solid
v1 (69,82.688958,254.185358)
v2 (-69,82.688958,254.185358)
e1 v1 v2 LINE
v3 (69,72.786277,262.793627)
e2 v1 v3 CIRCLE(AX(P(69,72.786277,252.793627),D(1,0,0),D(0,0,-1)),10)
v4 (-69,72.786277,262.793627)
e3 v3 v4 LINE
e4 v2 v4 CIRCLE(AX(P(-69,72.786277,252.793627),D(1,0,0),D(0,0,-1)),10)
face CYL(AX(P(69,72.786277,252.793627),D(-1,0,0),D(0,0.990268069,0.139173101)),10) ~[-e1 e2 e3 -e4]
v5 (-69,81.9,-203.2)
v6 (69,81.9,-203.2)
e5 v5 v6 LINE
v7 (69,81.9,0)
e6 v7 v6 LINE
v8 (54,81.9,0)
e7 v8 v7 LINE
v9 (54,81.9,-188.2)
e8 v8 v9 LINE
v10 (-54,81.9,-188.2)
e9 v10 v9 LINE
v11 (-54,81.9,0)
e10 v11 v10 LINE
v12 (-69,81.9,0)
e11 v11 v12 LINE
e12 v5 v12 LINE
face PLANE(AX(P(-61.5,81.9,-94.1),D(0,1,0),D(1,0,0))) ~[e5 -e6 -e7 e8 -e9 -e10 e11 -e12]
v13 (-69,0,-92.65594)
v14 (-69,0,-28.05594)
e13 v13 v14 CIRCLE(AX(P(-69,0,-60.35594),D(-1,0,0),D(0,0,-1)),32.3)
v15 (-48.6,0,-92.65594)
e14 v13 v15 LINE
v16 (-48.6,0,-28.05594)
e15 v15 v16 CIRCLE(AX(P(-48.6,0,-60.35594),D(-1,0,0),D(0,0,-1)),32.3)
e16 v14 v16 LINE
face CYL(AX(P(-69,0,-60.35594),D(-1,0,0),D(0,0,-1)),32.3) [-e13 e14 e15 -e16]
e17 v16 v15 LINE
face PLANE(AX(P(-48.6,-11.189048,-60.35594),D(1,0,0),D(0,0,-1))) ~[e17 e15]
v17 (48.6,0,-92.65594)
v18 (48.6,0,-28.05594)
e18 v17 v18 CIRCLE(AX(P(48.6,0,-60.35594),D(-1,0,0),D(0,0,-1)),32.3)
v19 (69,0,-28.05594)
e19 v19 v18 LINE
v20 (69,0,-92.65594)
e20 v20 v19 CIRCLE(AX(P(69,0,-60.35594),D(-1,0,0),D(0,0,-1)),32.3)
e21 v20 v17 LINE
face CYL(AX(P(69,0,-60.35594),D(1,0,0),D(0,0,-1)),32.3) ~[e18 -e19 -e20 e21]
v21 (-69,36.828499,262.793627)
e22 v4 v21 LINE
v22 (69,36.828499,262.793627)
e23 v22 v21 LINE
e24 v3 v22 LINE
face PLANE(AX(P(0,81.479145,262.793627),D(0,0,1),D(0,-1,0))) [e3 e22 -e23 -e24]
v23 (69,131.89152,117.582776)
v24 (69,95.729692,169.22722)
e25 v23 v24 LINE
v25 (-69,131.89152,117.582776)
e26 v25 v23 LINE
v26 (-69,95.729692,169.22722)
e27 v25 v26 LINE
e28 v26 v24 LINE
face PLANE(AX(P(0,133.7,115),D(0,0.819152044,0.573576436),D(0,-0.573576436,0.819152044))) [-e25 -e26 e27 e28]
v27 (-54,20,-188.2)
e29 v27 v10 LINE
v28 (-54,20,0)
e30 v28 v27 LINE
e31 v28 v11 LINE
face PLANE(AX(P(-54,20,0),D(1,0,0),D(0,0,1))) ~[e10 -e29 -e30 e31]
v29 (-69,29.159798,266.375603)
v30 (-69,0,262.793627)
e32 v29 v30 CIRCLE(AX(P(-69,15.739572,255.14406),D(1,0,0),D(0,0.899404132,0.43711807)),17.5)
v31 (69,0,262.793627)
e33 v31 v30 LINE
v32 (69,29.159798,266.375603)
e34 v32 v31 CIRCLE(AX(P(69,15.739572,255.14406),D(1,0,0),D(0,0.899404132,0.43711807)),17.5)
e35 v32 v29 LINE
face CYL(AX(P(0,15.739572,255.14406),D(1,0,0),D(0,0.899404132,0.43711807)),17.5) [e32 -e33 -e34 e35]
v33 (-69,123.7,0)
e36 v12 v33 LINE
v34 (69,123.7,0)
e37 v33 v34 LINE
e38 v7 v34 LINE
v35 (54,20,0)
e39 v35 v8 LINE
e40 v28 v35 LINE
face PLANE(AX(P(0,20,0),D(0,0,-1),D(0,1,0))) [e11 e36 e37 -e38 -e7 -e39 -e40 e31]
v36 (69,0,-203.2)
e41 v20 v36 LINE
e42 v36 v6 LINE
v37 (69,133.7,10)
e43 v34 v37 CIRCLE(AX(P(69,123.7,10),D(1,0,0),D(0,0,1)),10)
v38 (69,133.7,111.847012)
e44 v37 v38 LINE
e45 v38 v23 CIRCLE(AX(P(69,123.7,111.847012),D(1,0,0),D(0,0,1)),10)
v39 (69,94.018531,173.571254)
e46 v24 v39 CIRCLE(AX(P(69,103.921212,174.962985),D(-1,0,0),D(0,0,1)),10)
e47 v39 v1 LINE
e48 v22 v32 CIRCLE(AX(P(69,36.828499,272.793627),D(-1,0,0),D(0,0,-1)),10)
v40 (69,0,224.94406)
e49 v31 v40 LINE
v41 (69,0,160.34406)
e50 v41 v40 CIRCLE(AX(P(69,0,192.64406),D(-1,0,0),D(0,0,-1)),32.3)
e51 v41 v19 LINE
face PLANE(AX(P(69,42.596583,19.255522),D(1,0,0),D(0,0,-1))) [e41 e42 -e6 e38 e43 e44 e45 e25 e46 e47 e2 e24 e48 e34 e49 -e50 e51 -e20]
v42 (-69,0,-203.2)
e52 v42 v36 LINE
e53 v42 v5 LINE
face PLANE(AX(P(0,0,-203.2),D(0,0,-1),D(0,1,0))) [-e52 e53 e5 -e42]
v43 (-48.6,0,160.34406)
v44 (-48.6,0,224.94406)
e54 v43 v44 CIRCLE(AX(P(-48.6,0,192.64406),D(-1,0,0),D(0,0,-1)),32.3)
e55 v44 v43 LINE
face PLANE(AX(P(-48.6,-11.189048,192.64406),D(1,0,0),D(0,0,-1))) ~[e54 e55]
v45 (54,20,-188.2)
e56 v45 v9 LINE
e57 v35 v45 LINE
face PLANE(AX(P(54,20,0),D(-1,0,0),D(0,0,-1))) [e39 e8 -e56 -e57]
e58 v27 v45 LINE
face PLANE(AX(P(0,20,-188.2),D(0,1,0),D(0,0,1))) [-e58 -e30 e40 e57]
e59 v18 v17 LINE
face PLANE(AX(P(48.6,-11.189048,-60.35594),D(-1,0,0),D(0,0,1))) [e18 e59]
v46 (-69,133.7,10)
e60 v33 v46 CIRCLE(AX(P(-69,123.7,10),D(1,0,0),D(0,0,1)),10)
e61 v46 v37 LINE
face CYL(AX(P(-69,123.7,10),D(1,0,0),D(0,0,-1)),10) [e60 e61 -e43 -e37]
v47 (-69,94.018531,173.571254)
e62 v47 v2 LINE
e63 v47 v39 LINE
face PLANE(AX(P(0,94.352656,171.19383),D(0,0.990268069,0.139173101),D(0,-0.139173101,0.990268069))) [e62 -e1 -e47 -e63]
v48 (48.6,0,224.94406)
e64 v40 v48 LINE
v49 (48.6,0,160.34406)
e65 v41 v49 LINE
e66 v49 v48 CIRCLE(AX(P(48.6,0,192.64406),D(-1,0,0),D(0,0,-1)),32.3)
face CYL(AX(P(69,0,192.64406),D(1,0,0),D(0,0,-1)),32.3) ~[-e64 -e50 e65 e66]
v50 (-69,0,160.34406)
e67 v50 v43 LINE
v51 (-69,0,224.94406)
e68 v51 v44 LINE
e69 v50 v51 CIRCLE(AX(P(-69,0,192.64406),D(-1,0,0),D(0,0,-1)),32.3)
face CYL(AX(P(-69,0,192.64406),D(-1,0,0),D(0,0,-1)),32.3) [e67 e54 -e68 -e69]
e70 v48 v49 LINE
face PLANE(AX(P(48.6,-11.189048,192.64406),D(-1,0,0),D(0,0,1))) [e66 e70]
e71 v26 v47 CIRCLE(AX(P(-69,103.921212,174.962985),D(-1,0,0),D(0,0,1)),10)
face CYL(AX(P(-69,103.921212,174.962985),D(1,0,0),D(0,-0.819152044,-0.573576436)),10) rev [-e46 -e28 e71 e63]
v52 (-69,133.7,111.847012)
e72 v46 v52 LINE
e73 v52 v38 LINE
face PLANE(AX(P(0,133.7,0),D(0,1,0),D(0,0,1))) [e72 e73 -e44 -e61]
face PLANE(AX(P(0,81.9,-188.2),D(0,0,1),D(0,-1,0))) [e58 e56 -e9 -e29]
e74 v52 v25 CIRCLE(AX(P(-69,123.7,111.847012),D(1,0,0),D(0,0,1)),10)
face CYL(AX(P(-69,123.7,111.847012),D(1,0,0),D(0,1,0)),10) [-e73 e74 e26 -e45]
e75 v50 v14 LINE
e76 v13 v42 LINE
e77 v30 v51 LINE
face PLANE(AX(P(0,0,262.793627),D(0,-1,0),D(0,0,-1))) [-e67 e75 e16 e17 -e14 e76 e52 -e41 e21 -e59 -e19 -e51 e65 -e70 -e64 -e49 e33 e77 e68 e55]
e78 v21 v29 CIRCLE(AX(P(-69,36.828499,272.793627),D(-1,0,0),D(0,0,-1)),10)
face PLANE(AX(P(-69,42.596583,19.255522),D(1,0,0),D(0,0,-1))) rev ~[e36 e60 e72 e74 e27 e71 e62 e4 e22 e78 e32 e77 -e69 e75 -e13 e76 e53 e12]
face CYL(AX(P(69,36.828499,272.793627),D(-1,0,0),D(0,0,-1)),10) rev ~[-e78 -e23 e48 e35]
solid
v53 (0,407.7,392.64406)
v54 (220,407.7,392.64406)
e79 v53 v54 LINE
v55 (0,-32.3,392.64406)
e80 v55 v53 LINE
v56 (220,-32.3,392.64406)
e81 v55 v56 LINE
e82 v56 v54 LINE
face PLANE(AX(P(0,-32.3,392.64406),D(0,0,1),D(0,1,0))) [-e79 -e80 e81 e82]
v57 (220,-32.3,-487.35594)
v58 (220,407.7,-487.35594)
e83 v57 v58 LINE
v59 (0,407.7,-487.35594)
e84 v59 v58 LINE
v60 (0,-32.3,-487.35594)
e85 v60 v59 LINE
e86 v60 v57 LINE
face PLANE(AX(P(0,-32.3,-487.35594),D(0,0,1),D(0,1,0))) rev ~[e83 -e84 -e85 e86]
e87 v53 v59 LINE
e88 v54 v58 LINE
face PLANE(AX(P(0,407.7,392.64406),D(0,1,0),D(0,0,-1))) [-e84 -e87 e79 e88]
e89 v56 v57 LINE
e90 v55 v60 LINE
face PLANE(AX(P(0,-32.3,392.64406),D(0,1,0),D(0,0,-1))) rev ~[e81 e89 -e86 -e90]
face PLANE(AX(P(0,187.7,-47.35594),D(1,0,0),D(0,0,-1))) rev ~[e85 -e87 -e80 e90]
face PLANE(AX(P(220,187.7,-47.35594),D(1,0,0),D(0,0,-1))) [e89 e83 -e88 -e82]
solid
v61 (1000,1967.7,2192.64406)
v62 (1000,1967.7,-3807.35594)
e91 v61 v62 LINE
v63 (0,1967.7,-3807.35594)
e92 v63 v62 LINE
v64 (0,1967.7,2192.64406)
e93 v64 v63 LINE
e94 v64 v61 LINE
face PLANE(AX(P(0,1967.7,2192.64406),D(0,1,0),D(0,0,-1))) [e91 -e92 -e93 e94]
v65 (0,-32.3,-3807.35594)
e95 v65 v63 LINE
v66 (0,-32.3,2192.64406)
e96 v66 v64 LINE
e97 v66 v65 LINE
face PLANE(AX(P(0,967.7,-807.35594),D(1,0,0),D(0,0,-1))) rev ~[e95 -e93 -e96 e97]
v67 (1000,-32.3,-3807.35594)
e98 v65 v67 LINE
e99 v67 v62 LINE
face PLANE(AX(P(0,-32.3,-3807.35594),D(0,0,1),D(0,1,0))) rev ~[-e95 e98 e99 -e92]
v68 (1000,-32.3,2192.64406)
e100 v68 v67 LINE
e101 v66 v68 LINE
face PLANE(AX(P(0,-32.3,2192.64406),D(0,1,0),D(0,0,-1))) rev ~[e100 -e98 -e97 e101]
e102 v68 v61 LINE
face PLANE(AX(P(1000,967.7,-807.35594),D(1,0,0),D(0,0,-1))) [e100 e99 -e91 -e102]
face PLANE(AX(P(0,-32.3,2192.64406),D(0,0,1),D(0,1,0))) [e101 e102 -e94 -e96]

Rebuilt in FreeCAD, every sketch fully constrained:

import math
import FreeCAD as App
import Part
import Sketcher
from FreeCAD import Vector
Q = App.Units.Quantity


def edges_at(feature, points):
    """Names of the edges that pass closest to the given points."""
    edges = feature.Shape.Edges
    near = lambda p: min(range(len(edges)), key=lambda i: edges[i].distToShape(Part.Vertex(*p))[0])
    return sorted({f"Edge{near(p) + 1}" for p in points})

doc = App.newDocument("Part")
body = doc.addObject("PartDesign::Body", "Body")

# Sketch on YZ plane
sketch1 = body.newObject("Sketcher::SketchObject", "Sketch")
sketch1.AttachmentSupport = (doc.getObject("YZ_Plane"), [""])
sketch1.MapMode = "FlatFace"
sketch1.addGeometry(Part.LineSegment(Vector(0, 262.793627, 0), Vector(0, -203.2, 0)), False)
sketch1.addGeometry(Part.LineSegment(Vector(0, -203.2, 0), Vector(81.9, -203.2, 0)), False)
sketch1.addGeometry(Part.LineSegment(Vector(81.9, -203.2, 0), Vector(81.9, -188.2, 0)), False)
sketch1.addGeometry(Part.LineSegment(Vector(81.9, -188.2, 0), Vector(20, -188.2, 0)), False)
sketch1.addGeometry(Part.LineSegment(Vector(20, -188.2, 0), Vector(20, 0, 0)), False)
sketch1.addGeometry(Part.LineSegment(Vector(20, 0, 0), Vector(133.7, 0, 0)), False)
sketch1.addGeometry(Part.LineSegment(Vector(133.7, 0, 0), Vector(133.7, 115, 0)), False)
sketch1.addGeometry(Part.LineSegment(Vector(133.7, 115, 0), Vector(94.352656, 171.19383, 0)), False)
sketch1.addGeometry(Part.LineSegment(Vector(94.352656, 171.19383, 0), Vector(81.479145, 262.793627, 0)), False)
sketch1.addGeometry(Part.LineSegment(Vector(81.479145, 262.793627, 0), Vector(31.479145, 262.793627, 0)), False)
sketch1.addGeometry(Part.ArcOfCircle(Part.Circle(Vector(15.739572, 255.14406, 0), Vector(0, 0, 1), 17.5), math.radians(25.920147), math.radians(154.079853)), False)
sketch1.addConstraint(Sketcher.Constraint("Coincident", 0, 2, 1, 1))
sketch1.addConstraint(Sketcher.Constraint("Coincident", 1, 2, 2, 1))
sketch1.addConstraint(Sketcher.Constraint("Coincident", 2, 2, 3, 1))
sketch1.addConstraint(Sketcher.Constraint("Coincident", 3, 2, 4, 1))
sketch1.addConstraint(Sketcher.Constraint("Coincident", 4, 2, 5, 1))
sketch1.addConstraint(Sketcher.Constraint("Coincident", 5, 2, 6, 1))
sketch1.addConstraint(Sketcher.Constraint("Coincident", 6, 2, 7, 1))
sketch1.addConstraint(Sketcher.Constraint("Coincident", 7, 2, 8, 1))
sketch1.addConstraint(Sketcher.Constraint("Coincident", 8, 2, 9, 1))
sketch1.addConstraint(Sketcher.Constraint("Coincident", 9, 2, 10, 1))
sketch1.addConstraint(Sketcher.Constraint("Coincident", 10, 2, 0, 1))
sketch1.addConstraint(Sketcher.Constraint("Vertical", 0))
sketch1.addConstraint(Sketcher.Constraint("Horizontal", 1))
sketch1.addConstraint(Sketcher.Constraint("Vertical", 2))
sketch1.addConstraint(Sketcher.Constraint("Horizontal", 3))
sketch1.addConstraint(Sketcher.Constraint("Vertical", 4))
sketch1.addConstraint(Sketcher.Constraint("Horizontal", 5))
sketch1.addConstraint(Sketcher.Constraint("Vertical", 6))
sketch1.addConstraint(Sketcher.Constraint("Horizontal", 9))
sketch1.addConstraint(Sketcher.Constraint("PointOnObject", 0, 2, -2))
sketch1.addConstraint(Sketcher.Constraint("PointOnObject", 4, 2, -1))
sketch1.addConstraint(Sketcher.Constraint("Horizontal", 9, 2, 10, 2))
sketch1.addConstraint(Sketcher.Constraint("Radius", 10, 17.5))
sketch1.addConstraint(Sketcher.Constraint("DistanceX", 9, 2, 9, 1, 50.0))
sketch1.addConstraint(Sketcher.Constraint("DistanceY", 2, 1, 2, 2, 15.0))
sketch1.addConstraint(Sketcher.Constraint("DistanceY", 6, 1, 6, 2, 115.0))
sketch1.addConstraint(Sketcher.Constraint("Angle", 7, Q("125 deg")))
sketch1.addConstraint(Sketcher.Constraint("Angle", 8, Q("98 deg")))
sketch1.addConstraint(Sketcher.Constraint("DistanceX", 1, 1, 1, 2, 81.9))
sketch1.addConstraint(Sketcher.Constraint("DistanceX", 3, 2, 3, 1, 61.9))
sketch1.addConstraint(Sketcher.Constraint("DistanceX", 5, 1, 5, 2, 113.7))
sketch1.addConstraint(Sketcher.Constraint("DistanceY", 4, 1, 4, 2, 188.2))
sketch1.addConstraint(Sketcher.Constraint("Distance", 7, 68.6))
sketch1.addConstraint(Sketcher.Constraint("Distance", 8, 92.5))
pad1 = body.newObject("PartDesign::Pad", "Pad")
pad1.Profile = sketch1
pad1.Length = 138
pad1.Midplane = True

# Sketch on XZ plane
sketch2 = body.newObject("Sketcher::SketchObject", "Sketch001")
sketch2.AttachmentSupport = (doc.getObject("XZ_Plane"), [""])
sketch2.MapMode = "FlatFace"
sketch2.AttachmentOffset = App.Placement(Vector(0, 0, -20), App.Rotation())
sketch2.addGeometry(Part.LineSegment(Vector(54, -188.2, 0), Vector(54, 0, 0)), False)
sketch2.addGeometry(Part.LineSegment(Vector(54, 0, 0), Vector(69, 0, 0)), False)
sketch2.addGeometry(Part.LineSegment(Vector(69, 0, 0), Vector(69, -188.2, 0)), False)
sketch2.addGeometry(Part.LineSegment(Vector(69, -188.2, 0), Vector(54, -188.2, 0)), False)
sketch2.addConstraint(Sketcher.Constraint("Coincident", 0, 2, 1, 1))
sketch2.addConstraint(Sketcher.Constraint("Coincident", 1, 2, 2, 1))
sketch2.addConstraint(Sketcher.Constraint("Coincident", 2, 2, 3, 1))
sketch2.addConstraint(Sketcher.Constraint("Coincident", 3, 2, 0, 1))
sketch2.addConstraint(Sketcher.Constraint("Vertical", 0))
sketch2.addConstraint(Sketcher.Constraint("Horizontal", 1))
sketch2.addConstraint(Sketcher.Constraint("Vertical", 2))
sketch2.addConstraint(Sketcher.Constraint("Horizontal", 3))
sketch2.addConstraint(Sketcher.Constraint("PointOnObject", 0, 2, -1))
sketch2.addConstraint(Sketcher.Constraint("DistanceX", 1, 1, 1, 2, 15.0))
sketch2.addConstraint(Sketcher.Constraint("DistanceY", 0, 1, 0, 2, 188.2))
sketch2.addConstraint(Sketcher.Constraint("DistanceX", -1, 1, 0, 2, 54.0))
pad2 = body.newObject("PartDesign::Pad", "Pad001")
pad2.Profile = sketch2
pad2.Length = 61.9
pad2.Reversed = True
doc.recompute()

mirrored = body.newObject("PartDesign::Mirrored", "Mirrored")
mirrored.Originals = [pad2]
mirrored.MirrorPlane = (doc.getObject("YZ_Plane"), [""])
body.Tip = mirrored

# Sketch on YZ plane
sketch3 = body.newObject("Sketcher::SketchObject", "Sketch002")
sketch3.AttachmentSupport = (doc.getObject("YZ_Plane"), [""])
sketch3.MapMode = "FlatFace"
sketch3.AttachmentOffset = App.Placement(Vector(0, 0, 69), App.Rotation())
sketch3.addGeometry(Part.LineSegment(Vector(0, 160.34406, 0), Vector(0, 224.94406, 0)), False)
sketch3.addGeometry(Part.ArcOfCircle(Part.Circle(Vector(0, 192.64406, 0), Vector(0, 0, 1), 32.3), math.radians(90), math.radians(270)), False)
sketch3.addGeometry(Part.LineSegment(Vector(0, -92.65594, 0), Vector(0, -28.05594, 0)), False)
sketch3.addGeometry(Part.ArcOfCircle(Part.Circle(Vector(0, -60.35594, 0), Vector(0, 0, 1), 32.3), math.radians(90), math.radians(270)), False)
sketch3.addConstraint(Sketcher.Constraint("Coincident", 0, 1, 1, 2))
sketch3.addConstraint(Sketcher.Constraint("Coincident", 1, 1, 0, 2))
sketch3.addConstraint(Sketcher.Constraint("Coincident", 2, 1, 3, 2))
sketch3.addConstraint(Sketcher.Constraint("Coincident", 3, 1, 2, 2))
sketch3.addConstraint(Sketcher.Constraint("Vertical", 0))
sketch3.addConstraint(Sketcher.Constraint("Vertical", 2))
sketch3.addConstraint(Sketcher.Constraint("Equal", 1, 3))
sketch3.addConstraint(Sketcher.Constraint("PointOnObject", 1, 3, -2))
sketch3.addConstraint(Sketcher.Constraint("PointOnObject", 3, 3, -2))
sketch3.addConstraint(Sketcher.Constraint("PointOnObject", 0, 1, -2))
sketch3.addConstraint(Sketcher.Constraint("PointOnObject", 2, 1, -2))
sketch3.addConstraint(Sketcher.Constraint("Radius", 1, 32.3))
sketch3.addConstraint(Sketcher.Constraint("DistanceY", 3, 3, 1, 3, 253.0))
sketch3.addConstraint(Sketcher.Constraint("DistanceY", -1, 1, 1, 3, 192.64406))
pad3 = body.newObject("PartDesign::Pad", "Pad002")
pad3.Profile = sketch3
pad3.Length = 20.4
pad3.Reversed = True
doc.recompute()

mirrored2 = body.newObject("PartDesign::Mirrored", "Mirrored001")
mirrored2.Originals = [pad3]
mirrored2.MirrorPlane = (doc.getObject("YZ_Plane"), [""])
body.Tip = mirrored2
doc.recompute()

fillet = body.newObject("PartDesign::Fillet", "Fillet")
fillet.Base = (mirrored2, edges_at(mirrored2, [
    (0, 31.479, 262.794),
    (0, 81.479, 262.794),
    (0, 94.353, 171.194),
    (0, 133.7, 115),
    (0, 133.7, 0),
]))
fillet.Radius = 10
body2 = doc.addObject("PartDesign::Body", "Body001")

# Sketch on YZ plane
sketch4 = body2.newObject("Sketcher::SketchObject", "Sketch003")
sketch4.AttachmentSupport = (doc.getObject("YZ_Plane001"), [""])
sketch4.MapMode = "FlatFace"
sketch4.addGeometry(Part.LineSegment(Vector(1967.7, 2192.64406, 0), Vector(-32.3, 2192.64406, 0)), False)
sketch4.addGeometry(Part.LineSegment(Vector(-32.3, 2192.64406, 0), Vector(-32.3, -3807.35594, 0)), False)
sketch4.addGeometry(Part.LineSegment(Vector(-32.3, -3807.35594, 0), Vector(1967.7, -3807.35594, 0)), False)
sketch4.addGeometry(Part.LineSegment(Vector(1967.7, -3807.35594, 0), Vector(1967.7, 2192.64406, 0)), False)
sketch4.addConstraint(Sketcher.Constraint("Coincident", 0, 2, 1, 1))
sketch4.addConstraint(Sketcher.Constraint("Coincident", 1, 2, 2, 1))
sketch4.addConstraint(Sketcher.Constraint("Coincident", 2, 2, 3, 1))
sketch4.addConstraint(Sketcher.Constraint("Coincident", 3, 2, 0, 1))
sketch4.addConstraint(Sketcher.Constraint("Horizontal", 0))
sketch4.addConstraint(Sketcher.Constraint("Vertical", 1))
sketch4.addConstraint(Sketcher.Constraint("Horizontal", 2))
sketch4.addConstraint(Sketcher.Constraint("Vertical", 3))
sketch4.addConstraint(Sketcher.Constraint("DistanceX", 0, 2, 0, 1, 2000.0))
sketch4.addConstraint(Sketcher.Constraint("DistanceY", 1, 2, 1, 1, 6000.0))
sketch4.addConstraint(Sketcher.Constraint("DistanceX", 0, 2, -1, 1, 32.3))
sketch4.addConstraint(Sketcher.Constraint("DistanceY", -1, 1, 0, 2, 2192.64406))
pad4 = body2.newObject("PartDesign::Pad", "Pad003")
pad4.Profile = sketch4
pad4.Length = 1000
body3 = doc.addObject("PartDesign::Body", "Body002")

# Sketch on YZ plane
sketch5 = body3.newObject("Sketcher::SketchObject", "Sketch004")
sketch5.AttachmentSupport = (doc.getObject("YZ_Plane002"), [""])
sketch5.MapMode = "FlatFace"
sketch5.addGeometry(Part.LineSegment(Vector(407.7, 392.64406, 0), Vector(-32.3, 392.64406, 0)), False)
sketch5.addGeometry(Part.LineSegment(Vector(-32.3, 392.64406, 0), Vector(-32.3, -487.35594, 0)), False)
sketch5.addGeometry(Part.LineSegment(Vector(-32.3, -487.35594, 0), Vector(407.7, -487.35594, 0)), False)
sketch5.addGeometry(Part.LineSegment(Vector(407.7, -487.35594, 0), Vector(407.7, 392.64406, 0)), False)
sketch5.addConstraint(Sketcher.Constraint("Coincident", 0, 2, 1, 1))
sketch5.addConstraint(Sketcher.Constraint("Coincident", 1, 2, 2, 1))
sketch5.addConstraint(Sketcher.Constraint("Coincident", 2, 2, 3, 1))
sketch5.addConstraint(Sketcher.Constraint("Coincident", 3, 2, 0, 1))
sketch5.addConstraint(Sketcher.Constraint("Horizontal", 0))
sketch5.addConstraint(Sketcher.Constraint("Vertical", 1))
sketch5.addConstraint(Sketcher.Constraint("Horizontal", 2))
sketch5.addConstraint(Sketcher.Constraint("Vertical", 3))
sketch5.addConstraint(Sketcher.Constraint("DistanceX", 0, 2, 0, 1, 440.0))
sketch5.addConstraint(Sketcher.Constraint("DistanceY", 1, 2, 1, 1, 880.0))
sketch5.addConstraint(Sketcher.Constraint("DistanceX", 0, 2, -1, 1, 32.3))
sketch5.addConstraint(Sketcher.Constraint("DistanceY", -1, 1, 0, 2, 392.64406))
pad5 = body3.newObject("PartDesign::Pad", "Pad004")
pad5.Profile = sketch5
pad5.Length = 220

doc.recompute()
